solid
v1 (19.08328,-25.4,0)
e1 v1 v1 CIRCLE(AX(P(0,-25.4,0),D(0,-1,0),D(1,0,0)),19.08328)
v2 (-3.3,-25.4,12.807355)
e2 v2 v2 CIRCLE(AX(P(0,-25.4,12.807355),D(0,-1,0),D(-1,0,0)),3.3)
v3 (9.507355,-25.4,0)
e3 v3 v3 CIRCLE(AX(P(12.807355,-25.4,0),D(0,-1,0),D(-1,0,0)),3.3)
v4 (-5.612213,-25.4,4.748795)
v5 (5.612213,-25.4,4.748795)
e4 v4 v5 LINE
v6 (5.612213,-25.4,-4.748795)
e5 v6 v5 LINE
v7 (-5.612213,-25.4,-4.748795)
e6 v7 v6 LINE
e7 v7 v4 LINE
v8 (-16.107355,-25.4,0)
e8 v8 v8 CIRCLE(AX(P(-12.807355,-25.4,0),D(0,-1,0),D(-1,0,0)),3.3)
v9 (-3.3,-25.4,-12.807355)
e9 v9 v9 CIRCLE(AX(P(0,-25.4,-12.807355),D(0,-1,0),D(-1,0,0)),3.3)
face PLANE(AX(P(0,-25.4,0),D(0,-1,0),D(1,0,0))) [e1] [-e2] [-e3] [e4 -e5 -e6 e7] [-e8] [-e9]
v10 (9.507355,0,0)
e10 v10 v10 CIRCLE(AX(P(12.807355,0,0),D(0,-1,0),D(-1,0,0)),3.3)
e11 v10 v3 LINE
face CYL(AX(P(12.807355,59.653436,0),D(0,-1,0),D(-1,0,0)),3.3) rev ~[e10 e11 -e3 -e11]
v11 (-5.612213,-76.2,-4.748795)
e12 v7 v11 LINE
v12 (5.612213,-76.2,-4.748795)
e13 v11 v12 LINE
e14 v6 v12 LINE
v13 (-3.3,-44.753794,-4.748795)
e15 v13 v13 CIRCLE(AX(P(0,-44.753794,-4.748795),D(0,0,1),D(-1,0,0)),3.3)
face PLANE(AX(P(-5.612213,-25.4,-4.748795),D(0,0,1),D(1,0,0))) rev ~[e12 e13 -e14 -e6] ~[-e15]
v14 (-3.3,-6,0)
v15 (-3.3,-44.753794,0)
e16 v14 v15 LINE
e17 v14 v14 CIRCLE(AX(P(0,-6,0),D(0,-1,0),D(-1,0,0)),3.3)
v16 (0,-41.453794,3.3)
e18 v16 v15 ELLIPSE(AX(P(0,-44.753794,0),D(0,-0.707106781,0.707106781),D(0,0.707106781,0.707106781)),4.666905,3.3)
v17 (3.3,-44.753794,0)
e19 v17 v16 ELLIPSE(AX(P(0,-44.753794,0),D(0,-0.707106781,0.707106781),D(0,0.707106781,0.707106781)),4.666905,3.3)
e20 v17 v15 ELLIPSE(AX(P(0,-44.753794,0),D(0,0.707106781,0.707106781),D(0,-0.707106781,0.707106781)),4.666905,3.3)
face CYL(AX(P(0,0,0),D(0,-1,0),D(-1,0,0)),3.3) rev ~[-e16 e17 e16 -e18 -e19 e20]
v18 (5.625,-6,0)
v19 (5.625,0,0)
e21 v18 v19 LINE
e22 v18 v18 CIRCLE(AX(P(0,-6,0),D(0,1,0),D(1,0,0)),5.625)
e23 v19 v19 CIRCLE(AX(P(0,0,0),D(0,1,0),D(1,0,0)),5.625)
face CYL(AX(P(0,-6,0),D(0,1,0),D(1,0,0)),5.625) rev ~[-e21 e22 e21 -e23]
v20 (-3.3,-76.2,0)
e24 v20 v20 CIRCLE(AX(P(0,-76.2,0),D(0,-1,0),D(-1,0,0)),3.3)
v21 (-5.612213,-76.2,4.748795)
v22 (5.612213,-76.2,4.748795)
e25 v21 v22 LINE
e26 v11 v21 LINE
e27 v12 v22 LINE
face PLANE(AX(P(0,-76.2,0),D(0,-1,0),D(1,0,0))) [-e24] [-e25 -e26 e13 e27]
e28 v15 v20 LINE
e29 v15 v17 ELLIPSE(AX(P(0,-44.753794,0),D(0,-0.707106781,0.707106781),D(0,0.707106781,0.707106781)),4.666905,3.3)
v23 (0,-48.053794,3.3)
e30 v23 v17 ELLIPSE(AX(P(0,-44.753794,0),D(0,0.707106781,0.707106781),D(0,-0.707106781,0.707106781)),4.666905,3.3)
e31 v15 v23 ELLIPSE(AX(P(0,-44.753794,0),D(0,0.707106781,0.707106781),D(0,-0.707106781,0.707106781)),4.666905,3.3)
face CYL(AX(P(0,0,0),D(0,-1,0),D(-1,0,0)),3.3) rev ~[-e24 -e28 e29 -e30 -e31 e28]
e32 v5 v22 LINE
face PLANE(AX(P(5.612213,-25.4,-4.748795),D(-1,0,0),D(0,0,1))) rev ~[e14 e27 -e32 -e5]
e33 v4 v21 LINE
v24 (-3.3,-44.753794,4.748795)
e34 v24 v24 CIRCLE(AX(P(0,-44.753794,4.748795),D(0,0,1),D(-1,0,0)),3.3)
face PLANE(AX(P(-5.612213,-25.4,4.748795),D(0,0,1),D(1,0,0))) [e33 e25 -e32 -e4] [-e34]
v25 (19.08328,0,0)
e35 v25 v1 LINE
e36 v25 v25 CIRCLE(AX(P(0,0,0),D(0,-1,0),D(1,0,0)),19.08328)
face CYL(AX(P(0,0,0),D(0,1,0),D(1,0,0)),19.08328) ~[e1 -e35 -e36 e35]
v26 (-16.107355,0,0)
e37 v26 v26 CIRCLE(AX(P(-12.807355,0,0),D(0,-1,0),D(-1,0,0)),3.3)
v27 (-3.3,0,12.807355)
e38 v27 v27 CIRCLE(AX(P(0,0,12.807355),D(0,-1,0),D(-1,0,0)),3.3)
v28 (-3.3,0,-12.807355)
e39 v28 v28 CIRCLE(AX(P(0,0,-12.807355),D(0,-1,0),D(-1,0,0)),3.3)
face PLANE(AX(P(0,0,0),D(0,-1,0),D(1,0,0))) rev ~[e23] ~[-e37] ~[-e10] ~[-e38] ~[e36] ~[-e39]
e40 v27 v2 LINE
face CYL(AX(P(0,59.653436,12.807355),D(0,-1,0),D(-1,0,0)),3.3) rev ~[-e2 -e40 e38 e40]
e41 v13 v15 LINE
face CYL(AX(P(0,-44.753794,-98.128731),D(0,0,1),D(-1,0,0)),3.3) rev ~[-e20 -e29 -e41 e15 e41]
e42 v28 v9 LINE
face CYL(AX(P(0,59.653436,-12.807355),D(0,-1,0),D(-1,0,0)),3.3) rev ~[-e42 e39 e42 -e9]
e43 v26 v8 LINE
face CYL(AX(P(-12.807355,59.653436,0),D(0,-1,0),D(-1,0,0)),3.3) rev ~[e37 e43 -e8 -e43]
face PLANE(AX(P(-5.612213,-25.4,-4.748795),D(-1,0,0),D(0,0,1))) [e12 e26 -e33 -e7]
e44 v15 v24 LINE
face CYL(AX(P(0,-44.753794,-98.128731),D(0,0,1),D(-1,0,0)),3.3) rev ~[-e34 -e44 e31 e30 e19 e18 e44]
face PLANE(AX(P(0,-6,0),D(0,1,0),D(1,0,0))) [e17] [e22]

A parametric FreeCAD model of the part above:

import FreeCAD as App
import Part
import Sketcher
Q = App.Units.Quantity

doc = App.newDocument("Part")
body = doc.addObject("PartDesign::Body", "Body")

# Sketch on XZ plane
sketch1 = body.newObject("Sketcher::SketchObject", "Sketch")
sketch1.AttachmentSupport = (doc.getObject("XZ_Plane"), [""])
sketch1.MapMode = "FlatFace"
sketch1.addGeometry(Part.Circle(App.Vector(0, 0, 0), App.Vector(0, 0, 1), 19), False)
sketch1.addConstraint([
    Sketcher.Constraint("Coincident", 0, 3, -1, 1),
    Sketcher.Constraint("Diameter", 0, 38.166559),
])
pad1 = body.newObject("PartDesign::Pad", "Pad")
pad1.Profile = sketch1
pad1.Length = Q("1 in")

# Sketch on XZ plane
sketch2 = body.newObject("Sketcher::SketchObject", "Sketch001")
sketch2.AttachmentSupport = (doc.getObject("XZ_Plane"), [""])
sketch2.MapMode = "FlatFace"
sketch2.addGeometry([
    Part.Circle(App.Vector(0, 12.8, 0), App.Vector(0, 0, 1), 3.3),
    Part.Circle(App.Vector(12.8, 0, 0), App.Vector(0, 0, 1), 3.3),
    Part.Circle(App.Vector(0, -12.8, 0), App.Vector(0, 0, 1), 3.3),
    Part.Circle(App.Vector(-12.8, 0, 0), App.Vector(0, 0, 1), 3.3),
], False)
sketch2.addConstraint([
    Sketcher.Constraint("Equal", 0, 1),
    Sketcher.Constraint("Equal", 1, 2),
    Sketcher.Constraint("Equal", 2, 3),
    Sketcher.Constraint("Symmetric", 0, 3, 2, 3, -1, 1),
    Sketcher.Constraint("Symmetric", 1, 3, 3, 3, -1, 1),
    Sketcher.Constraint("PointOnObject", 0, 3, -2),
    Sketcher.Constraint("PointOnObject", 1, 3, -1),
    Sketcher.Constraint("Diameter", 0, 6.6),
    Sketcher.Constraint("DistanceY", 2, 3, 0, 3, 25.614711),
    Sketcher.Constraint("DistanceX", 3, 3, 1, 3, 25.614711),
])
doc.recompute()
hole = body.newObject("PartDesign::Hole", "Hole")
hole.Profile = sketch2
hole.ThreadType = "None"
hole.Diameter = 6.6
hole.DepthType = "ThroughAll"
hole.Reversed = True

# Sketch on XZ plane
sketch3 = body.newObject("Sketcher::SketchObject", "Sketch002")
sketch3.AttachmentSupport = (doc.getObject("XZ_Plane"), [""])
sketch3.MapMode = "FlatFace"
sketch3.AttachmentOffset = App.Placement(App.Vector(0, 0, 1 * 25.4), App.Rotation())
sketch3.addGeometry([
    Part.LineSegment(App.Vector(-6, 5, 0), App.Vector(-6, -5, 0)),
    Part.LineSegment(App.Vector(-6, -5, 0), App.Vector(6, -5, 0)),
    Part.LineSegment(App.Vector(6, -5, 0), App.Vector(6, 5, 0)),
    Part.LineSegment(App.Vector(6, 5, 0), App.Vector(-6, 5, 0)),
], False)
sketch3.addConstraint([
    Sketcher.Constraint("Coincident", 0, 2, 1, 1),
    Sketcher.Constraint("Coincident", 1, 2, 2, 1),
    Sketcher.Constraint("Coincident", 2, 2, 3, 1),
    Sketcher.Constraint("Coincident", 3, 2, 0, 1),
    Sketcher.Constraint("Vertical", 0),
    Sketcher.Constraint("Horizontal", 1),
    Sketcher.Constraint("Vertical", 2),
    Sketcher.Constraint("Horizontal", 3),
    Sketcher.Constraint("Symmetric", 0, 2, 2, 2, -1, 1),
    Sketcher.Constraint("DistanceY", 0, 2, 0, 1, 9.49759),
    Sketcher.Constraint("DistanceX", 1, 1, 1, 2, 11.224425),
])
pad2 = body.newObject("PartDesign::Pad", "Pad001")
pad2.Profile = sketch3
pad2.Length = Q("2 in")

# Sketch on XY plane
sketch4 = body.newObject("Sketcher::SketchObject", "Sketch003")
sketch4.AttachmentSupport = (doc.getObject("XY_Plane"), [""])
sketch4.MapMode = "FlatFace"
sketch4.AttachmentOffset = App.Placement(App.Vector(0, 0, -4.748795), App.Rotation())
sketch4.addGeometry(Part.Circle(App.Vector(0, -44.8, 0), App.Vector(0, 0, 1), 3.3), False)
sketch4.addConstraint([
    Sketcher.Constraint("PointOnObject", 0, 3, -2),
    Sketcher.Constraint("Diameter", 0, 6.6),
    Sketcher.Constraint("DistanceY", 0, 3, -1, 1, 44.753794),
])
doc.recompute()
hole2 = body.newObject("PartDesign::Hole", "Hole001")
hole2.Profile = sketch4
hole2.ThreadType = "None"
hole2.Diameter = 6.6
hole2.DepthType = "ThroughAll"
hole2.Reversed = True

# Sketch on XZ plane
sketch5 = body.newObject("Sketcher::SketchObject", "Sketch004")
sketch5.AttachmentSupport = (doc.getObject("XZ_Plane"), [""])
sketch5.MapMode = "FlatFace"
sketch5.addGeometry(Part.Circle(App.Vector(0, 0, 0), App.Vector(0, 0, 1), 3.3), False)
sketch5.addConstraint([
    Sketcher.Constraint("Coincident", 0, 3, -1, 1),
    Sketcher.Constraint("Diameter", 0, 6.6),
])
doc.recompute()
hole3 = body.newObject("PartDesign::Hole", "Hole002")
hole3.Profile = sketch5
hole3.ThreadType = "None"
hole3.Diameter = 6.6
hole3.DepthType = "ThroughAll"
hole3.HoleCutType = "Counterbore"
hole3.HoleCutDiameter = 11.25
hole3.HoleCutDepth = 6
hole3.Reversed = True

doc.recompute()
